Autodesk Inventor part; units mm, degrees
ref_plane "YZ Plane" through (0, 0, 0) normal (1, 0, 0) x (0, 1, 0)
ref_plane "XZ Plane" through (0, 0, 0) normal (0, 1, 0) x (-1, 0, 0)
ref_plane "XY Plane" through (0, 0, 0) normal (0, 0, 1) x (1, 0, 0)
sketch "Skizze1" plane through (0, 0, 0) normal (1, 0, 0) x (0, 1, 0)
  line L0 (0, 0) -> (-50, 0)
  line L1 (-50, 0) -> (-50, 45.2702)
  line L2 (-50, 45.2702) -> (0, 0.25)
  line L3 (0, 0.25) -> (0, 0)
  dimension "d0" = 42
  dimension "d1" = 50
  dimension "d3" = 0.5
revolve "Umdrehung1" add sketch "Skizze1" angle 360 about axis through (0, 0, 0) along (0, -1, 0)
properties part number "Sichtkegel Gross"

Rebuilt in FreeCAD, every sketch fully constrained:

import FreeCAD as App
import Part
import Sketcher
from FreeCAD import Vector
Q = App.Units.Quantity

doc = App.newDocument("Part")
body = doc.addObject("PartDesign::Body", "Body")

sketch1 = doc.addObject("Sketcher::SketchObject", "Sketch")
body.addObject(sketch1)
sketch1.AttachmentSupport = (doc.YZ_Plane, [""])
sketch1.MapMode = "FlatFace"
sketch1.addGeometry([
    Part.LineSegment(Vector(-50, 0, 0), Vector(0, 0, 0)),
    Part.LineSegment(Vector(0, 0, 0), Vector(0, 0.25, 0)),
    Part.LineSegment(Vector(0, 0.25, 0), Vector(-50, 45.27, 0)),
    Part.LineSegment(Vector(-50, 45.27, 0), Vector(-50, 0, 0)),
], False)
sketch1.addConstraint([
    Sketcher.Constraint("Coincident", 0, 2, 1, 1),
    Sketcher.Constraint("Coincident", 1, 2, 2, 1),
    Sketcher.Constraint("Coincident", 2, 2, 3, 1),
    Sketcher.Constraint("Coincident", 3, 2, 0, 1),
    Sketcher.Constraint("Horizontal", 0),
    Sketcher.Constraint("Vertical", 1),
    Sketcher.Constraint("Vertical", 3),
    Sketcher.Constraint("Coincident", 0, 2, -1, 1),
    Sketcher.Constraint("DistanceX", 0, 1, 0, 2, 50.0),
    Sketcher.Constraint("Angle", 2, Q("138 deg")),
    Sketcher.Constraint("DistanceY", 1, 1, 1, 2, 0.25),
])
revolution = doc.addObject("PartDesign::Revolution", "Revolution")
body.addObject(revolution)
revolution.Profile = sketch1
revolution.ReferenceAxis = (sketch1, ["H_Axis"])
revolution.Angle = 360

doc.recompute()
